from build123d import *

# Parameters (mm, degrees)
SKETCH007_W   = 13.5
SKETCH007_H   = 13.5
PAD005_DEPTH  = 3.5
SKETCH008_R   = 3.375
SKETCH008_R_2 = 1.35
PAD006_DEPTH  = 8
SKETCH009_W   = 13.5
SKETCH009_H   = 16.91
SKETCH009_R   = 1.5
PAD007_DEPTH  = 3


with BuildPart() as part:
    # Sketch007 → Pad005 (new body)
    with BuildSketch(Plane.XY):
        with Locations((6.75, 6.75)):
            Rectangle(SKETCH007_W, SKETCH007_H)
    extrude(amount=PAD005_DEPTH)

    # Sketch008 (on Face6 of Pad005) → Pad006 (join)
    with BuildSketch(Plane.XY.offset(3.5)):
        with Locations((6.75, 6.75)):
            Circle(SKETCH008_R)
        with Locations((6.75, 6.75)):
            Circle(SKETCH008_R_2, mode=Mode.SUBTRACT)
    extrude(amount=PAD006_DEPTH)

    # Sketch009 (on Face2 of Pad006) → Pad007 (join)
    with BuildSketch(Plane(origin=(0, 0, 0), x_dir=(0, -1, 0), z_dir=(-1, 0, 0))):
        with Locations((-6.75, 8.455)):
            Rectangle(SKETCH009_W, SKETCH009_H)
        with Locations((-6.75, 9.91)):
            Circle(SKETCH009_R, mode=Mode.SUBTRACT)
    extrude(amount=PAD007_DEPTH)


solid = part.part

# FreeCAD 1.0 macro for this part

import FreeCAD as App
import Part
import Sketcher

doc = App.newDocument("Part")
params = doc.addObject("Spreadsheet::Sheet", "Params")
for row, (alias, value) in enumerate([
    ("sketch1_width", "13.5 mm"),
    ("pad1_length", "3.5 mm"),
    ("sketch2_diameter", "2.7 mm"),
    ("sketch2_diameter2", "6.75 mm"),
    ("pad2_length", "8 mm"),
    ("sketch3_diameter", "3 mm"),
    ("sketch3_width", "13.5 mm"),
    ("sketch3_height", "16.91 mm"),
    ("pad3_length", "3 mm"),
], start=1):
    params.set(f"A{row}", alias)
    params.set(f"B{row}", "=" + value)
    params.setAlias(f"B{row}", alias)

body = doc.addObject("PartDesign::Body", "Body")

sketch1 = body.newObject("Sketcher::SketchObject", "Sketch")
sketch1.AttachmentSupport = (doc.getObject("XY_Plane"), [""])
sketch1.MapMode = "FlatFace"
sketch1.addGeometry([
    Part.LineSegment(App.Vector(0, 13.5, 0), App.Vector(0, 0, 0)),
    Part.LineSegment(App.Vector(0, 0, 0), App.Vector(13.5, 0, 0)),
    Part.LineSegment(App.Vector(13.5, 0, 0), App.Vector(13.5, 13.5, 0)),
    Part.LineSegment(App.Vector(13.5, 13.5, 0), App.Vector(0, 13.5, 0)),
], False)
sketch1.addConstraint([
    Sketcher.Constraint("Coincident", 0, 2, 1, 1),
    Sketcher.Constraint("Coincident", 1, 2, 2, 1),
    Sketcher.Constraint("Coincident", 2, 2, 3, 1),
    Sketcher.Constraint("Coincident", 3, 2, 0, 1),
    Sketcher.Constraint("Vertical", 0),
    Sketcher.Constraint("Horizontal", 1),
    Sketcher.Constraint("Vertical", 2),
    Sketcher.Constraint("Horizontal", 3),
    Sketcher.Constraint("Coincident", 0, 2, -1, 1),
    Sketcher.Constraint("Equal", 3, 0),
    Sketcher.Constraint("DistanceX", 1, 1, 1, 2, 13.5),
])
sketch1.setExpression("Constraints[10]", "Params.sketch1_width")
pad1 = body.newObject("PartDesign::Pad", "Pad")
pad1.Profile = sketch1
pad1.setExpression("Length", "Params.pad1_length")

sketch2 = body.newObject("Sketcher::SketchObject", "Sketch001")
sketch2.AttachmentSupport = (doc.getObject("XY_Plane"), [""])
sketch2.MapMode = "FlatFace"
sketch2.AttachmentOffset = App.Placement(App.Vector(0, 0, 3.5), App.Rotation())
sketch2.addGeometry([
    Part.Circle(App.Vector(6.75, 6.75, 0), App.Vector(0, 0, 1), 3.375),
    Part.Circle(App.Vector(6.75, 6.75, 0), App.Vector(0, 0, 1), 1.35),
], False)
sketch2.addConstraint([
    Sketcher.Constraint("Coincident", 1, 3, 0, 3),
    Sketcher.Constraint("Diameter", 1, 2.7),
    Sketcher.Constraint("Diameter", 0, 6.75),
    Sketcher.Constraint("DistanceX", -1, 1, 0, 3, 6.75),
    Sketcher.Constraint("DistanceY", -1, 1, 0, 3, 6.75),
])
sketch2.setExpression("Constraints[1]", "Params.sketch2_diameter")
sketch2.setExpression("Constraints[2]", "Params.sketch2_diameter2")
pad2 = body.newObject("PartDesign::Pad", "Pad001")
pad2.Profile = sketch2
pad2.setExpression("Length", "Params.pad2_length")

sketch3 = body.newObject("Sketcher::SketchObject", "Sketch002")
sketch3.AttachmentSupport = (doc.getObject("YZ_Plane"), [""])
sketch3.MapMode = "FlatFace"
sketch3.addGeometry([
    Part.LineSegment(App.Vector(13.5, 16.91, 0), App.Vector(13.5, 0, 0)),
    Part.LineSegment(App.Vector(13.5, 0, 0), App.Vector(0, 0, 0)),
    Part.LineSegment(App.Vector(0, 0, 0), App.Vector(0, 16.91, 0)),
    Part.LineSegment(App.Vector(0, 16.91, 0), App.Vector(13.5, 16.91, 0)),
    Part.Circle(App.Vector(6.75, 9.91, 0), App.Vector(0, 0, 1), 1.5),
], False)
sketch3.addConstraint([
    Sketcher.Constraint("Coincident", 0, 2, 1, 1),
    Sketcher.Constraint("Coincident", 1, 2, 2, 1),
    Sketcher.Constraint("Coincident", 2, 2, 3, 1),
    Sketcher.Constraint("Coincident", 3, 2, 0, 1),
    Sketcher.Constraint("Vertical", 0),
    Sketcher.Constraint("Horizontal", 1),
    Sketcher.Constraint("Vertical", 2),
    Sketcher.Constraint("Horizontal", 3),
    Sketcher.Constraint("Coincident", 1, 2, -1, 1),
    Sketcher.Constraint("Diameter", 4, 3.0),
    Sketcher.Constraint("DistanceX", 1, 2, 1, 1, 13.5),
    Sketcher.Constraint("DistanceY", 4, 3, 2, 2, 7.0),
    Sketcher.Constraint("DistanceY", 0, 2, 0, 1, 16.91),
    Sketcher.Constraint("DistanceX", -1, 1, 4, 3, 6.75),
])
sketch3.setExpression("Constraints[9]", "Params.sketch3_diameter")
sketch3.setExpression("Constraints[10]", "Params.sketch3_width")
sketch3.setExpression("Constraints[12]", "Params.sketch3_height")
pad3 = body.newObject("PartDesign::Pad", "Pad002")
pad3.Profile = sketch3
pad3.setExpression("Length", "Params.pad3_length")
pad3.Reversed = True

doc.recompute()
